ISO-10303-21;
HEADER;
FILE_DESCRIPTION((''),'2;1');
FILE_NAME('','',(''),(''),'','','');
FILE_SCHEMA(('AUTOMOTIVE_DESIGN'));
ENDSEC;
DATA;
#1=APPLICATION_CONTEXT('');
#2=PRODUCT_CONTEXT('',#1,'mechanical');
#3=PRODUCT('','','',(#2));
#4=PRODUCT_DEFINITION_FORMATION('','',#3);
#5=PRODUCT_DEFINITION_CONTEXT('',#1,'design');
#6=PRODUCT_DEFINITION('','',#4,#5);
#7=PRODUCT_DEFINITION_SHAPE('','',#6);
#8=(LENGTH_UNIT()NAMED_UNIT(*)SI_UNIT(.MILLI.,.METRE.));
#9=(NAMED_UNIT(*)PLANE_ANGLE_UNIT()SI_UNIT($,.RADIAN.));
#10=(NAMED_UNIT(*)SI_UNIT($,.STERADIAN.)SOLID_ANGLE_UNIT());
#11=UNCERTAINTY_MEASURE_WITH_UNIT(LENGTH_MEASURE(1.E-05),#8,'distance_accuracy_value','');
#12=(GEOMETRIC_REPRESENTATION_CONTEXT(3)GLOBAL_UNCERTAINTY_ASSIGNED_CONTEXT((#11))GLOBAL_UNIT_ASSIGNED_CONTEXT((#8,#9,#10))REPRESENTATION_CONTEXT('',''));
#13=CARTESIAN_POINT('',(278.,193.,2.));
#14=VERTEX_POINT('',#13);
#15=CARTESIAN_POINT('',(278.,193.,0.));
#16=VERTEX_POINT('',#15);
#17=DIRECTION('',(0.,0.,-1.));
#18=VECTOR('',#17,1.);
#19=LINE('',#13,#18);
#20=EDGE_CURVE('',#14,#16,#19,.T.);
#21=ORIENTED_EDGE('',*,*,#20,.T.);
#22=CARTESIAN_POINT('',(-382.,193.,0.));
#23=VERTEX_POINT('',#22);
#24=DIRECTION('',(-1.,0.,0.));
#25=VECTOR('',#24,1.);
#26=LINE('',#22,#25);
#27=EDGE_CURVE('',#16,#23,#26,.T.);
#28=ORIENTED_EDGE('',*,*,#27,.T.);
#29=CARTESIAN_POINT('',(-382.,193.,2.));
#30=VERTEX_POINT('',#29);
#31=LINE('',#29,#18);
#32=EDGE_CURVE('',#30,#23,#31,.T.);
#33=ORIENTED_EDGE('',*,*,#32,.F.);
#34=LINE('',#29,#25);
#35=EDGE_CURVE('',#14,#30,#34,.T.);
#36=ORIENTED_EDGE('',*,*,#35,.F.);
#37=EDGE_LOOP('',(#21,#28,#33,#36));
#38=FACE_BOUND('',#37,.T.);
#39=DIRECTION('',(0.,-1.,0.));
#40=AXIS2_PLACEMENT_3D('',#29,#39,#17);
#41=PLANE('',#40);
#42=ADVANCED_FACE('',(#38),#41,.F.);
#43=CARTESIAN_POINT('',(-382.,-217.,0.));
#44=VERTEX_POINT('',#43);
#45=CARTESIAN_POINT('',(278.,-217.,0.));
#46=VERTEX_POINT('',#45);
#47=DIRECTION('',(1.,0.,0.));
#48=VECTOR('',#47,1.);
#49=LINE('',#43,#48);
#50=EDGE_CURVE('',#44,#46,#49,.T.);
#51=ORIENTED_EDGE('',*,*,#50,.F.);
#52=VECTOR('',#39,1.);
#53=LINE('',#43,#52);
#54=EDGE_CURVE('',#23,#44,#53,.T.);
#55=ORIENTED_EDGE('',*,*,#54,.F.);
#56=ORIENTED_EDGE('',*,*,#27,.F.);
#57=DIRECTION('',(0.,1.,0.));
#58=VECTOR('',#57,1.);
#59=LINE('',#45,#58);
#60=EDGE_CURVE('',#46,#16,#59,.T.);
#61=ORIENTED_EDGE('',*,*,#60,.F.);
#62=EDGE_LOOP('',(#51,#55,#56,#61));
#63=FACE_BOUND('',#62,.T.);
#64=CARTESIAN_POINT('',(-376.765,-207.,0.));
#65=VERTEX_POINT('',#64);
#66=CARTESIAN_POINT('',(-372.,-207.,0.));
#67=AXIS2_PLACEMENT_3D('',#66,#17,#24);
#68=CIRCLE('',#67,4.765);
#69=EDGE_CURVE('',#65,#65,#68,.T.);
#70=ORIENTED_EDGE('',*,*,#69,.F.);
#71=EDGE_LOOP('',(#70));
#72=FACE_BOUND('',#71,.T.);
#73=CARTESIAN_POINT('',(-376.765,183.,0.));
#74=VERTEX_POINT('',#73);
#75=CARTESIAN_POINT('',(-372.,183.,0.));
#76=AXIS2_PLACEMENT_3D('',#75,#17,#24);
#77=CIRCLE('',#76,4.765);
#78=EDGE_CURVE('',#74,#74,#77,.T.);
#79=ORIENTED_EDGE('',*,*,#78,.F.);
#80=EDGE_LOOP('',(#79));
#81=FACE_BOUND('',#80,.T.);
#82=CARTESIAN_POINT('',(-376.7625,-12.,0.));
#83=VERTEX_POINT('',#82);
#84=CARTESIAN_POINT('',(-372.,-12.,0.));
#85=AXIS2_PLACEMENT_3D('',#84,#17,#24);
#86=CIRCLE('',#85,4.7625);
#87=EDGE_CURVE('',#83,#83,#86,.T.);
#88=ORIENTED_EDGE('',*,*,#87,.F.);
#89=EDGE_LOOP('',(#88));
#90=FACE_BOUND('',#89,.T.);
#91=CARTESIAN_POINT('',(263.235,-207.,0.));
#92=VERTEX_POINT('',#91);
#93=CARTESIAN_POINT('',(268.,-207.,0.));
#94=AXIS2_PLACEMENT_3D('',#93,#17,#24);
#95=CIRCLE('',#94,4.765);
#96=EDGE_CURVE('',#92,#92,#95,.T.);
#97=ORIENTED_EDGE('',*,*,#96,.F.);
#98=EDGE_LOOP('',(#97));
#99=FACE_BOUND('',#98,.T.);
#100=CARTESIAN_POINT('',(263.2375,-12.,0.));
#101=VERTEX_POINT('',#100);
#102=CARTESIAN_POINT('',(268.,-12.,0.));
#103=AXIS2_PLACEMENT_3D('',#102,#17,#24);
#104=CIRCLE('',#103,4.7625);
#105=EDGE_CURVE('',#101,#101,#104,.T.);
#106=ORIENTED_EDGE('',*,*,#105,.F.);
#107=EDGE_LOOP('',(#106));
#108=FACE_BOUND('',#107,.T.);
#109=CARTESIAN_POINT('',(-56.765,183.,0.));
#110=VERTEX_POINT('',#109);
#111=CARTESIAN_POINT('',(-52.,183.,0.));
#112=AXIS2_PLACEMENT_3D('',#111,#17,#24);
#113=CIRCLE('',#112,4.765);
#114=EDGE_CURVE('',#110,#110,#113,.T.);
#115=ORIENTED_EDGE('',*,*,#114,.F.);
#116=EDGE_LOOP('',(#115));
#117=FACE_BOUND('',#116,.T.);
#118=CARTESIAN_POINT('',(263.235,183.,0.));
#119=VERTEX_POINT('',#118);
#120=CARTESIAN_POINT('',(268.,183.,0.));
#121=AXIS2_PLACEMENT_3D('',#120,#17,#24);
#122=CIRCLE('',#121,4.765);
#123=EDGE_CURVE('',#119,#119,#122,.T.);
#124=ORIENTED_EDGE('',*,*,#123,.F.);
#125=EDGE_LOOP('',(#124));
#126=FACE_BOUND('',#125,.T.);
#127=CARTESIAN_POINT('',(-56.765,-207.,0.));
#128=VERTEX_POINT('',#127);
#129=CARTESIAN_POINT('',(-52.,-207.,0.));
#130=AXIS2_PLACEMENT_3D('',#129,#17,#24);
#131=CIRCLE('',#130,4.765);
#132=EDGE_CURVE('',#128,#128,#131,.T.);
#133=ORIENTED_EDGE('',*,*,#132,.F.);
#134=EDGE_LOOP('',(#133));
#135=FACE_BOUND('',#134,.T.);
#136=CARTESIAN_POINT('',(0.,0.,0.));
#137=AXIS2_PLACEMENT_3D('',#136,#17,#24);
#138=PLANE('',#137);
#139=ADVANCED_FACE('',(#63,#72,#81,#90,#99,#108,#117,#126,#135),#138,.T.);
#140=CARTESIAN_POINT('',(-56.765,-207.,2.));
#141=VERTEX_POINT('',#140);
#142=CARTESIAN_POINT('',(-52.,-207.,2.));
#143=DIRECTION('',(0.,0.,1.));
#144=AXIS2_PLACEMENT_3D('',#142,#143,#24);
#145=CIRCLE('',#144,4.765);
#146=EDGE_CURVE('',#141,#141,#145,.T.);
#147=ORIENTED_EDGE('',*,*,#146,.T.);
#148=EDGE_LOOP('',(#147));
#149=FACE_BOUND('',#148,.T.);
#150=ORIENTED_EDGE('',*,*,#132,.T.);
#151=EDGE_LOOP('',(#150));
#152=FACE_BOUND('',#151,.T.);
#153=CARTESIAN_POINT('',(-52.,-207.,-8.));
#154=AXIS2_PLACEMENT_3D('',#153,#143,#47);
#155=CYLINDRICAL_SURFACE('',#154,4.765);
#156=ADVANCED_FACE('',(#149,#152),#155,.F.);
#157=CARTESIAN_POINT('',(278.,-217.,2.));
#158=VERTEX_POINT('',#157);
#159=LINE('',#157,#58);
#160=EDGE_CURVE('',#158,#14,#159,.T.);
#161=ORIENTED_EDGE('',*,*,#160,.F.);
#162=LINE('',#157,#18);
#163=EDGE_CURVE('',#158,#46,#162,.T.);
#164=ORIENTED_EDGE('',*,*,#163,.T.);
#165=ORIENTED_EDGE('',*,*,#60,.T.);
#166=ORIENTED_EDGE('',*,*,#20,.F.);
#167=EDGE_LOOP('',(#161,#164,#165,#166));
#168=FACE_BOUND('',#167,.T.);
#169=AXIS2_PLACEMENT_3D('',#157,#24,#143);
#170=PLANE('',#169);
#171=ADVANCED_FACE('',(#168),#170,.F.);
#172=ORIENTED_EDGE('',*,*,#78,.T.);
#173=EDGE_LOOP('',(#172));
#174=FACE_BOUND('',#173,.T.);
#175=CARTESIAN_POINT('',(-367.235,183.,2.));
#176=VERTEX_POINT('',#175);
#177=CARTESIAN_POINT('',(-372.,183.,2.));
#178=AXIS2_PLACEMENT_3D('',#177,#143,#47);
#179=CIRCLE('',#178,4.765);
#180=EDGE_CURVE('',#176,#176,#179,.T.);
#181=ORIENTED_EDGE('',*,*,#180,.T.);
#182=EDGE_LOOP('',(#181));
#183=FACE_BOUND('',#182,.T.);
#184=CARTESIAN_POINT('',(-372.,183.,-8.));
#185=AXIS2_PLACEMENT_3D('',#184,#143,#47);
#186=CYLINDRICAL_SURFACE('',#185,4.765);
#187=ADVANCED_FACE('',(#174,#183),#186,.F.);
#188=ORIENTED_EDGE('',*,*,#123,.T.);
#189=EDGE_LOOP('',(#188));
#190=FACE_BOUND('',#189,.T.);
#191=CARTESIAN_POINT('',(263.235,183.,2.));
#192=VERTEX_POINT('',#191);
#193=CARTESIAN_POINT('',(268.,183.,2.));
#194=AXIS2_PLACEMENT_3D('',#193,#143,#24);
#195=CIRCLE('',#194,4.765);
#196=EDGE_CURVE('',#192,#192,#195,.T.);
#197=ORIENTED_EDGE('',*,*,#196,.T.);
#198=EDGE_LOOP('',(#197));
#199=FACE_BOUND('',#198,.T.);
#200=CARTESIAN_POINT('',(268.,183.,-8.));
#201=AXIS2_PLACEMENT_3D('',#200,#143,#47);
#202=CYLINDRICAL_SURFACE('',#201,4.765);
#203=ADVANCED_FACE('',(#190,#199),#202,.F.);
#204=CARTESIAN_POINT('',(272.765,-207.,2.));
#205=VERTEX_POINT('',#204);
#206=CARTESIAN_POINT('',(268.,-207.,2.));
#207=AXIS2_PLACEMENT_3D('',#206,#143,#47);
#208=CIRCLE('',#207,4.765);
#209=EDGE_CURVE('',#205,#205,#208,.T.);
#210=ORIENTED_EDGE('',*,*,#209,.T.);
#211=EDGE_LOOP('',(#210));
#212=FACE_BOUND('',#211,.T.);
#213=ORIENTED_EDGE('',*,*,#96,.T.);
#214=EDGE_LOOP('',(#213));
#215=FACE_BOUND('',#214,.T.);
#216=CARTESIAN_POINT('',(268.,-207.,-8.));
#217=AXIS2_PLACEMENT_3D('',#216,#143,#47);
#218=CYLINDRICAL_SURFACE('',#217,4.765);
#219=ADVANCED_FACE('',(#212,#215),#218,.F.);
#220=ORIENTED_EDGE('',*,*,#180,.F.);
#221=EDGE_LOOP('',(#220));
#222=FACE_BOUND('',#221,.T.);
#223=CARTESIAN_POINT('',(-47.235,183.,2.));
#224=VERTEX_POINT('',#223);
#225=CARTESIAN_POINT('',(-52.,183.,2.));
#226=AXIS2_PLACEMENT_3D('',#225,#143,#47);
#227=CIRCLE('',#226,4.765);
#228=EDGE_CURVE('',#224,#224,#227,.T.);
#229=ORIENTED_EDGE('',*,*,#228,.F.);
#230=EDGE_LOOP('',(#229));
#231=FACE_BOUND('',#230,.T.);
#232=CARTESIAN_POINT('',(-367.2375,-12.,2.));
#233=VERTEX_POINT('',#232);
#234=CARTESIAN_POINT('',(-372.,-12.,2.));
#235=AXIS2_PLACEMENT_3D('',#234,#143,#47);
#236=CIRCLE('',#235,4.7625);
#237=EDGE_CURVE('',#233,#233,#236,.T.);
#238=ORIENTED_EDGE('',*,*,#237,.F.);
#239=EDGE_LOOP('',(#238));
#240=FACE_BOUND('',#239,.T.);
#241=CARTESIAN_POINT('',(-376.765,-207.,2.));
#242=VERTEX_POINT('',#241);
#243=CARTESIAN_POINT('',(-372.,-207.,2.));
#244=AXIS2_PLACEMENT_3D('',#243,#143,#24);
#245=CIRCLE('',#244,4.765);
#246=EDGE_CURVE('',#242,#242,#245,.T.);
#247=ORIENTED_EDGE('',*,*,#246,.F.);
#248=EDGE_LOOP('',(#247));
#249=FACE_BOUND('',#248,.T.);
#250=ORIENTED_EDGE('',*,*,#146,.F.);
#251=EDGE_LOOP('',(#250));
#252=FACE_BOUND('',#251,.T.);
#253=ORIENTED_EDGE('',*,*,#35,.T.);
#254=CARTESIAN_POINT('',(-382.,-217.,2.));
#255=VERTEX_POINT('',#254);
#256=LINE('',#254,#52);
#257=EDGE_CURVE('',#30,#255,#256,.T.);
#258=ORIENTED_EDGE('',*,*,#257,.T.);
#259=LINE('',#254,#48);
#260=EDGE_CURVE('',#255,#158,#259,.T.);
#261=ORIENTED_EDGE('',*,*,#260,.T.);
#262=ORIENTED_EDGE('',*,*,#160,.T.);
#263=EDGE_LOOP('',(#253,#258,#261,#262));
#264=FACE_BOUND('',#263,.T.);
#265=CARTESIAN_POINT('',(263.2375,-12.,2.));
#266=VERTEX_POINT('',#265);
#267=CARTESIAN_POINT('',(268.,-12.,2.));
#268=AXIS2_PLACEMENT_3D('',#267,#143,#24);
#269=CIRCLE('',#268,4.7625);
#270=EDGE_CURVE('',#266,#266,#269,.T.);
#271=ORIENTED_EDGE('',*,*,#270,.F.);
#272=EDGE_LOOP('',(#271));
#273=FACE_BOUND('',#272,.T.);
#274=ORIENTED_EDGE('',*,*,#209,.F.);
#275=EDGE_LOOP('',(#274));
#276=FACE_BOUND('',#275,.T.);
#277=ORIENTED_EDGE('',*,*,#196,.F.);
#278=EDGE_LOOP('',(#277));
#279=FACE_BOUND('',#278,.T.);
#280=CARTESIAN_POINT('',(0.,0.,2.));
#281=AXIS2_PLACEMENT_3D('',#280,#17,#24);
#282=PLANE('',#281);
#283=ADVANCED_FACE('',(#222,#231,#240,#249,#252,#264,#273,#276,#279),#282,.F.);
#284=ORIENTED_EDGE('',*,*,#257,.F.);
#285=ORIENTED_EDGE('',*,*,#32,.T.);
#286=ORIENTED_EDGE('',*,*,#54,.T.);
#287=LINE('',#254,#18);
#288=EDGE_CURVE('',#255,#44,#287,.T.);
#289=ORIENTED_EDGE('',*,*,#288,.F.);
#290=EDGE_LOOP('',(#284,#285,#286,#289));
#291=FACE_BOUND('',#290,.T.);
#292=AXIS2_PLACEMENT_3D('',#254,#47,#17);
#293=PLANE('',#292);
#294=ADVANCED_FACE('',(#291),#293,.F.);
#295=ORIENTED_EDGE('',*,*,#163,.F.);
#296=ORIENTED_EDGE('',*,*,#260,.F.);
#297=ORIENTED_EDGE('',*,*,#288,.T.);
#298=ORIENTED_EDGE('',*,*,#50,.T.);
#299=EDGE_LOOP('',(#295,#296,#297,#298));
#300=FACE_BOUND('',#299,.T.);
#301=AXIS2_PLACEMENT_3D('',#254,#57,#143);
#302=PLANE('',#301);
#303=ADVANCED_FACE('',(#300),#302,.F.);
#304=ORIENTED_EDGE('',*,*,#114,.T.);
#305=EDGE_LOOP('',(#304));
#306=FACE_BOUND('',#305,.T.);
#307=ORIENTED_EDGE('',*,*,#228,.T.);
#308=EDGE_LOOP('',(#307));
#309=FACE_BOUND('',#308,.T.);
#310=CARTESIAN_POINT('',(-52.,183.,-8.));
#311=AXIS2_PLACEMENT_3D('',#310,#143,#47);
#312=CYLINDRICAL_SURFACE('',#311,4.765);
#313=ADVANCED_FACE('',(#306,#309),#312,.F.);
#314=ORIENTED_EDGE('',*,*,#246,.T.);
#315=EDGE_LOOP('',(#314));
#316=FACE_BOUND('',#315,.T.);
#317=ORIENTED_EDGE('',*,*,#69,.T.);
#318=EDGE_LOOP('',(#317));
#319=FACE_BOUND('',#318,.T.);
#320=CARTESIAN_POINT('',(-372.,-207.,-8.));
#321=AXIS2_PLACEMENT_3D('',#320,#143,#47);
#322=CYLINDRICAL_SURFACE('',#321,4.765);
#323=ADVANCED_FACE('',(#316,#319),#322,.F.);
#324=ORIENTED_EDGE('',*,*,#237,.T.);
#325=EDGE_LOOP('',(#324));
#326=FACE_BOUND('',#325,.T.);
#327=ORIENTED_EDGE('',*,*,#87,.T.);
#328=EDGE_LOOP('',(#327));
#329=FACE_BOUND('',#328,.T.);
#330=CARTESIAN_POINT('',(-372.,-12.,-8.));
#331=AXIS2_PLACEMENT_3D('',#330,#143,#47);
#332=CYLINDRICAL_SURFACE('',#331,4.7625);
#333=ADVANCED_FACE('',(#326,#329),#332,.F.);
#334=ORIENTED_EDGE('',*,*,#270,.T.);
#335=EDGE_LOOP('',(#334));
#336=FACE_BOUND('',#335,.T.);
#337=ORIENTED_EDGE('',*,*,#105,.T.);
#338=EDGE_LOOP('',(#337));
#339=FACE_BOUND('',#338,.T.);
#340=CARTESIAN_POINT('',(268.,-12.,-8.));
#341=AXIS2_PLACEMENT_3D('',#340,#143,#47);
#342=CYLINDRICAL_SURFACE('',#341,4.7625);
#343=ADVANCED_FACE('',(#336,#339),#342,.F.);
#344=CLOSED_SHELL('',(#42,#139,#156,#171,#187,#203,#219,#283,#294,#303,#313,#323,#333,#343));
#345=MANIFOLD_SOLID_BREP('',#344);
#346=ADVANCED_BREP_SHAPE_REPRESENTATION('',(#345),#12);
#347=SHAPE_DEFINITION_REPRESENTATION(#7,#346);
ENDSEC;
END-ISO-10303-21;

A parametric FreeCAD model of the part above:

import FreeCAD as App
import Part
import Sketcher

V = App.Vector
Q = App.Units.Quantity

doc = App.newDocument("Part")
body = doc.addObject("PartDesign::Body", "Body")

# Sketch on XY plane
sketch1 = doc.addObject("Sketcher::SketchObject", "Sketch")
body.addObject(sketch1)
sketch1.AttachmentSupport = (doc.XY_Plane, [""])
sketch1.MapMode = "FlatFace"
sketch1.addGeometry([
    Part.LineSegment(V(-382, 193, 0), V(-382, -217, 0)),
    Part.LineSegment(V(-382, -217, 0), V(278, -217, 0)),
    Part.LineSegment(V(278, -217, 0), V(278, 193, 0)),
    Part.LineSegment(V(278, 193, 0), V(-382, 193, 0)),
], False)
sketch1.addConstraint([
    Sketcher.Constraint("Coincident", 0, 2, 1, 1),
    Sketcher.Constraint("Coincident", 1, 2, 2, 1),
    Sketcher.Constraint("Coincident", 2, 2, 3, 1),
    Sketcher.Constraint("Coincident", 3, 2, 0, 1),
    Sketcher.Constraint("Vertical", 0),
    Sketcher.Constraint("Horizontal", 1),
    Sketcher.Constraint("Vertical", 2),
    Sketcher.Constraint("Horizontal", 3),
    Sketcher.Constraint("DistanceX", 1, 1, 1, 2, Q("660 mm")),
    Sketcher.Constraint("DistanceY", 0, 2, 0, 1, Q("410 mm")),
    Sketcher.Constraint("DistanceX", 0, 2, -1, 1, Q("382 mm")),
    Sketcher.Constraint("DistanceY", 0, 2, -1, 1, Q("217 mm")),
])
pad1 = doc.addObject("PartDesign::Pad", "Pad")
body.addObject(pad1)
pad1.Profile = sketch1
pad1.Length = 2

# Sketch on XY plane
sketch2 = doc.addObject("Sketcher::SketchObject", "Sketch001")
body.addObject(sketch2)
sketch2.AttachmentSupport = (doc.XY_Plane, [""])
sketch2.MapMode = "FlatFace"
sketch2.AttachmentOffset = App.Placement(V(0, 0, 2), App.Rotation())
sketch2.addGeometry([
    Part.Circle(V(-372, 183, 0), V(0, 0, 1), 4.8),  # 0
    Part.Circle(V(268, 183, 0), V(0, 0, 1), 4.8),  # 1
    Part.Circle(V(268, -207, 0), V(0, 0, 1), 4.8),  # 2
    Part.Circle(V(-372, -207, 0), V(0, 0, 1), 4.8),  # 3
    Part.Circle(V(-372, -12, 0), V(0, 0, 1), 4.8),  # 4
    Part.Circle(V(268, -12, 0), V(0, 0, 1), 4.8),  # 5
    Part.Circle(V(-52, 183, 0), V(0, 0, 1), 4.8),  # 6
    Part.Circle(V(-52, -207, 0), V(0, 0, 1), 4.8),  # 7
], False)
sketch2.addConstraint([
    Sketcher.Constraint("Equal", 0, 1),
    Sketcher.Constraint("Equal", 1, 2),
    Sketcher.Constraint("Equal", 2, 3),
    Sketcher.Constraint("Equal", 4, 5),
    Sketcher.Constraint("Equal", 3, 6),
    Sketcher.Constraint("Equal", 6, 7),
    Sketcher.Constraint("Horizontal", 0, 3, 1, 3),
    Sketcher.Constraint("Horizontal", 2, 3, 3, 3),
    Sketcher.Constraint("Horizontal", 4, 3, 5, 3),
    Sketcher.Constraint("Horizontal", 1, 3, 6, 3),
    Sketcher.Constraint("Horizontal", 3, 3, 7, 3),
    Sketcher.Constraint("Vertical", 1, 3, 2, 3),
    Sketcher.Constraint("Vertical", 0, 3, 3, 3),
    Sketcher.Constraint("Vertical", 3, 3, 4, 3),
    Sketcher.Constraint("Vertical", 2, 3, 5, 3),
    Sketcher.Constraint("Vertical", 6, 3, 7, 3),
    Sketcher.Constraint("Diameter", 0, Q("9.53 mm")),
    Sketcher.Constraint("Diameter", 4, Q("9.525 mm")),
    Sketcher.Constraint("DistanceX", 0, 3, -1, 1, Q("372 mm")),
    Sketcher.Constraint("DistanceY", -1, 1, 0, 3, Q("183 mm")),
    Sketcher.Constraint("DistanceX", -1, 1, 1, 3, Q("268 mm")),
    Sketcher.Constraint("DistanceY", 2, 3, -1, 1, Q("207 mm")),
    Sketcher.Constraint("DistanceY", 4, 3, -1, 1, Q("12 mm")),
    Sketcher.Constraint("DistanceX", 6, 3, -1, 1, Q("52 mm")),
])
pocket1 = doc.addObject("PartDesign::Pocket", "Pocket")
body.addObject(pocket1)
pocket1.Profile = sketch2
pocket1.Length = 10

doc.recompute()
